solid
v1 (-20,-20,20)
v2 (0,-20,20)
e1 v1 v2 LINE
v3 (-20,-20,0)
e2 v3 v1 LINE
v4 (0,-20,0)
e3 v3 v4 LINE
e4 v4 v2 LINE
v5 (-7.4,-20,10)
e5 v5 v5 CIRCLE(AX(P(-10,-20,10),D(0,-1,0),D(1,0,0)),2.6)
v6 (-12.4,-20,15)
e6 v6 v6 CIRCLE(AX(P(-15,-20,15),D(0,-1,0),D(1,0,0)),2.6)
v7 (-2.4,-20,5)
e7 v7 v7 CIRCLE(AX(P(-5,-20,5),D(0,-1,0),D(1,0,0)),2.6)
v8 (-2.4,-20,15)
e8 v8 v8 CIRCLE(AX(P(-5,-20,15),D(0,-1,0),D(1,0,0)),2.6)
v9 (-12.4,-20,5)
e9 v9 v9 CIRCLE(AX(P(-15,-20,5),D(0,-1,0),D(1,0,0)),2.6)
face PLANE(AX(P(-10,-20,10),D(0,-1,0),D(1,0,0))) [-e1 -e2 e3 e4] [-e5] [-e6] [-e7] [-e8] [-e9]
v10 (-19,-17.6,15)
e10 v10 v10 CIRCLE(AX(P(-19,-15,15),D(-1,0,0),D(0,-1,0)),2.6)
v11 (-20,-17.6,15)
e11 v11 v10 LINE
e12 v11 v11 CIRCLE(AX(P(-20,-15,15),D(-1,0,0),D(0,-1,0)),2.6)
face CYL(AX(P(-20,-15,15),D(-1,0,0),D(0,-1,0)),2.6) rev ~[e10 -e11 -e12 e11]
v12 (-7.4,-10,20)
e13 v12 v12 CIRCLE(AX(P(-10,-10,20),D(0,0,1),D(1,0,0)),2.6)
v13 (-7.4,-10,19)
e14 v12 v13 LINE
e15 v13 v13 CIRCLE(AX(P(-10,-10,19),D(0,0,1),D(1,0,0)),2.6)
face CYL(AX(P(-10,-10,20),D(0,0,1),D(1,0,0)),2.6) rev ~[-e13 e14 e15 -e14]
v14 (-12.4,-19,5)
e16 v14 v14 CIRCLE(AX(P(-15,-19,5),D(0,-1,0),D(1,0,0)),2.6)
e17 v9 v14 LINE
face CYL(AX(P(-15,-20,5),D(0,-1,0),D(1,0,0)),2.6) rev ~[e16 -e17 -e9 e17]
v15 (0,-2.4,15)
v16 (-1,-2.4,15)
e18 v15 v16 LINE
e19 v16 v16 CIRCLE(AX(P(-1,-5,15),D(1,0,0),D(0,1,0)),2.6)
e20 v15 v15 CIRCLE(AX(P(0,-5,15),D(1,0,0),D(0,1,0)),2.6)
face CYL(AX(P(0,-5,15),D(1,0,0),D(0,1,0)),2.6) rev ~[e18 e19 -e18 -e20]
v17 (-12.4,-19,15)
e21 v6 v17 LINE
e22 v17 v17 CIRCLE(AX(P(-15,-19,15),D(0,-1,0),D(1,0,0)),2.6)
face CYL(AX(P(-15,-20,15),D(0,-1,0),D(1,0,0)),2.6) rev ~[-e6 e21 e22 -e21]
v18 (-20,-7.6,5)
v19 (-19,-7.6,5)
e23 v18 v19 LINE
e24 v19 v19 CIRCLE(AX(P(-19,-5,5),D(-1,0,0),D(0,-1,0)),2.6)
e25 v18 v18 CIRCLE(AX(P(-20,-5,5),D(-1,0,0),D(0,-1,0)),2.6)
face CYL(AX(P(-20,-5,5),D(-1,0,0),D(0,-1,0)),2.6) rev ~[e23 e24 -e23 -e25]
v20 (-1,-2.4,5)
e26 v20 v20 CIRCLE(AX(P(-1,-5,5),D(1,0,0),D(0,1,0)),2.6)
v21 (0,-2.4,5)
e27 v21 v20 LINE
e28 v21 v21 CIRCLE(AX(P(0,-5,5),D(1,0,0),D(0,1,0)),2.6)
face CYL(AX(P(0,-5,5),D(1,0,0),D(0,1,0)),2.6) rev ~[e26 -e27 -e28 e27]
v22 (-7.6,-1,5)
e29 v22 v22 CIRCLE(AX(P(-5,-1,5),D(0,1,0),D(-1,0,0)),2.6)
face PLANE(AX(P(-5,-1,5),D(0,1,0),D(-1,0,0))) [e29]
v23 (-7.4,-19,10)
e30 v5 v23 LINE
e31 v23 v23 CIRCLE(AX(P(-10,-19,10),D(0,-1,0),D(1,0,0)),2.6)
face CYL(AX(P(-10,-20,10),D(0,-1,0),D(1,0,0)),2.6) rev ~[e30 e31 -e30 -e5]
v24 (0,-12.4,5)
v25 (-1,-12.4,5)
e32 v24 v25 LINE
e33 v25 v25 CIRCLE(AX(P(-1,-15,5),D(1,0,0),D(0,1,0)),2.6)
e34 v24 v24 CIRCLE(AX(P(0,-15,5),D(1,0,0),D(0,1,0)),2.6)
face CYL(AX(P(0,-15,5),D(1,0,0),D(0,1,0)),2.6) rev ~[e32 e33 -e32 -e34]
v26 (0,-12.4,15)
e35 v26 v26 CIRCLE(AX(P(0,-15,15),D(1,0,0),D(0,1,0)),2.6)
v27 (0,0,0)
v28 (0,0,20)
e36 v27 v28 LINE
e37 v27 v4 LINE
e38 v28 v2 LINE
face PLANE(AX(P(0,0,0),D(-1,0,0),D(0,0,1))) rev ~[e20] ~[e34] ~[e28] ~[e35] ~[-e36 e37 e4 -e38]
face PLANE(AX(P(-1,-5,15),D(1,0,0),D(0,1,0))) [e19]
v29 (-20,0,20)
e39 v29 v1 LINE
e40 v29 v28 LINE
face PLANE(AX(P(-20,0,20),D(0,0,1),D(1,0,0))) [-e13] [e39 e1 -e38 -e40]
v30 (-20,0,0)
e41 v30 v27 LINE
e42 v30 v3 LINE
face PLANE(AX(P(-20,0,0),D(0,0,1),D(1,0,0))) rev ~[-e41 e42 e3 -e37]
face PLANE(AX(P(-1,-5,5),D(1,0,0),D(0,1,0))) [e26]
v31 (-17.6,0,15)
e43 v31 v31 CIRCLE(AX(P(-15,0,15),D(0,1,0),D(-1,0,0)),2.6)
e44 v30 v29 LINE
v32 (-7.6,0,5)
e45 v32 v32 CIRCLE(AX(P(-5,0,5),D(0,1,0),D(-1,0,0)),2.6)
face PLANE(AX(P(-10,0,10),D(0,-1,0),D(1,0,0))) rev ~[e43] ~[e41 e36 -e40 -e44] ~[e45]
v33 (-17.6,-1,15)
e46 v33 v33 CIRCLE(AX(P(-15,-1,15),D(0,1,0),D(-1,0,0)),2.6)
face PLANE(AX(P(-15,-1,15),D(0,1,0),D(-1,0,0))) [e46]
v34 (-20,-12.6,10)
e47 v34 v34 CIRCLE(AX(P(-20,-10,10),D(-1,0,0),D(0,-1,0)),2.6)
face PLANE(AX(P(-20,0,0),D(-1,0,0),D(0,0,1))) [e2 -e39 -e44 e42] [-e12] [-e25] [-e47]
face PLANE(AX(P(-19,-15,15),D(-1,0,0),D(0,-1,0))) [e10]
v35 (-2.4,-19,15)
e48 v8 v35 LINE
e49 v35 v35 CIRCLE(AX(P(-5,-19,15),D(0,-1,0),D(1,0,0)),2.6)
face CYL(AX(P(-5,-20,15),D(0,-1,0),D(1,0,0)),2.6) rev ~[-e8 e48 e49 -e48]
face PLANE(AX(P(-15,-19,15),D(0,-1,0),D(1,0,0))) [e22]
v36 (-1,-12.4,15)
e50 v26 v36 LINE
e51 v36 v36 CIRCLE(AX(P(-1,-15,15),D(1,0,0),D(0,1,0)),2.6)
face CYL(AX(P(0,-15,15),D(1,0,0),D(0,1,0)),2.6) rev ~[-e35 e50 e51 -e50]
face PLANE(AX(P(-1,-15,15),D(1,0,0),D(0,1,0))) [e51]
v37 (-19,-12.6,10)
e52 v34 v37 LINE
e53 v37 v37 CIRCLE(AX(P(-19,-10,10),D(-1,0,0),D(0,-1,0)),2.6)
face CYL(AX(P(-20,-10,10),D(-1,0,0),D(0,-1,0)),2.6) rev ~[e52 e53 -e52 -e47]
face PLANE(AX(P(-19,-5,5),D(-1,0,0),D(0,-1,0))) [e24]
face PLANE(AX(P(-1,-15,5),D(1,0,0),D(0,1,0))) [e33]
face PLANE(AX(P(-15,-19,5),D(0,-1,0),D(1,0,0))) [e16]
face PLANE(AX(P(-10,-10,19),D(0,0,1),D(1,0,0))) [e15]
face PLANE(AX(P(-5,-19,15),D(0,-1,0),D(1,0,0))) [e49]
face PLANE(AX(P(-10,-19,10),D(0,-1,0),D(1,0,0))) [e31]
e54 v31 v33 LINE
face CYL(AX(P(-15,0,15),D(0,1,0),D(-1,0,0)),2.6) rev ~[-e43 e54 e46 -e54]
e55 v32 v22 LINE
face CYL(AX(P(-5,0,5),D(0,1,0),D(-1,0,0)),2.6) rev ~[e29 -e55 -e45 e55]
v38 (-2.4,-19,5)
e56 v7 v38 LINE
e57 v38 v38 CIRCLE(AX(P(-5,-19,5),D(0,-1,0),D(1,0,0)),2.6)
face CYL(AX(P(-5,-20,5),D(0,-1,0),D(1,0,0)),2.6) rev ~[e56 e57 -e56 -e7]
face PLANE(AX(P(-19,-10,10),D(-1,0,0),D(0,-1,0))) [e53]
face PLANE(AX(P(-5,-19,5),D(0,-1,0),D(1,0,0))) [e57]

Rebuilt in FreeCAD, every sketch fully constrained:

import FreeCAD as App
import Part
import Sketcher


def add_polygon(sketch, points):
    """Adds a closed chain of lines whose ends are joined by coincident constraints."""
    first, n = sketch.GeometryCount, len(points)
    for a, b in zip(points, points[1:] + points[:1]):
        sketch.addGeometry(Part.LineSegment(App.Vector(*a, 0), App.Vector(*b, 0)), False)
    for i in range(n):
        sketch.addConstraint(Sketcher.Constraint("Coincident", first + i, 2, first + (i + 1) % n, 1))

doc = App.newDocument("Part")
body = doc.addObject("PartDesign::Body", "Body")

# Sketch on XZ plane
sketch1 = body.newObject("Sketcher::SketchObject", "Sketch")
sketch1.AttachmentSupport = (doc.getObject("XZ_Plane"), [""])
sketch1.MapMode = "FlatFace"
add_polygon(sketch1, [(-20, 20), (-20, 0), (0, 0), (0, 20)])  # lines 0-3
sketch1.addConstraint([
    Sketcher.Constraint("Vertical", 0),
    Sketcher.Constraint("Horizontal", 1),
    Sketcher.Constraint("Vertical", 2),
    Sketcher.Constraint("Horizontal", 3),
    Sketcher.Constraint("Coincident", 1, 2, -1, 1),
    Sketcher.Constraint("Equal", 3, 0),
    Sketcher.Constraint("DistanceX", 1, 1, 1, 2, 20.0),
])
pad1 = body.newObject("PartDesign::Pad", "Pad")
pad1.Profile = sketch1
pad1.Length = 20

# Sketch on XZ plane
sketch2 = body.newObject("Sketcher::SketchObject", "Sketch001")
sketch2.AttachmentSupport = (doc.getObject("XZ_Plane"), [""])
sketch2.MapMode = "FlatFace"
sketch2.AttachmentOffset = App.Placement(App.Vector(0, 0, 20), App.Rotation())
sketch2.addGeometry([
    Part.Circle(App.Vector(-15, 15, 0), App.Vector(0, 0, 1), 2.6),  # 0
    Part.Circle(App.Vector(-10, 10, 0), App.Vector(0, 0, 1), 2.6),  # 1
    Part.Circle(App.Vector(-15, 5, 0), App.Vector(0, 0, 1), 2.6),  # 2
    Part.Circle(App.Vector(-5, 15, 0), App.Vector(0, 0, 1), 2.6),  # 3
    Part.Circle(App.Vector(-5, 5, 0), App.Vector(0, 0, 1), 2.6),  # 4
], False)
sketch2.addConstraint([
    Sketcher.Constraint("Equal", 0, 1),
    Sketcher.Constraint("Equal", 1, 2),
    Sketcher.Constraint("Equal", 2, 3),
    Sketcher.Constraint("Equal", 3, 4),
    Sketcher.Constraint("Horizontal", 0, 3, 3, 3),
    Sketcher.Constraint("Horizontal", 2, 3, 4, 3),
    Sketcher.Constraint("Vertical", 0, 3, 2, 3),
    Sketcher.Constraint("Vertical", 3, 3, 4, 3),
    Sketcher.Constraint("Diameter", 0, 5.2),
    Sketcher.Constraint("DistanceX", 0, 3, -1, 1, 15.0),
    Sketcher.Constraint("DistanceY", -1, 1, 0, 3, 15.0),
    Sketcher.Constraint("DistanceX", 1, 3, -1, 1, 10.0),
    Sketcher.Constraint("DistanceY", -1, 1, 1, 3, 10.0),
    Sketcher.Constraint("DistanceY", -1, 1, 2, 3, 5.0),
    Sketcher.Constraint("DistanceX", 3, 3, -1, 1, 5.0),
])
pocket1 = body.newObject("PartDesign::Pocket", "Pocket")
pocket1.Profile = sketch2
pocket1.Length = 1

# Sketch on XZ plane
sketch3 = body.newObject("Sketcher::SketchObject", "Sketch002")
sketch3.AttachmentSupport = (doc.getObject("XZ_Plane"), [""])
sketch3.MapMode = "FlatFace"
sketch3.addGeometry([
    Part.Circle(App.Vector(-15, 15, 0), App.Vector(0, 0, 1), 2.6),
    Part.Circle(App.Vector(-5, 5, 0), App.Vector(0, 0, 1), 2.6),
], False)
sketch3.addConstraint([
    Sketcher.Constraint("Equal", 0, 1),
    Sketcher.Constraint("Diameter", 0, 5.2),
    Sketcher.Constraint("DistanceX", 0, 3, -1, 1, 15.0),
    Sketcher.Constraint("DistanceY", -1, 1, 0, 3, 15.0),
    Sketcher.Constraint("DistanceX", 1, 3, -1, 1, 5.0),
    Sketcher.Constraint("DistanceY", -1, 1, 1, 3, 5.0),
])
pocket2 = body.newObject("PartDesign::Pocket", "Pocket001")
pocket2.Profile = sketch3
pocket2.Length = 1
pocket2.Reversed = True

# Sketch on XY plane
sketch4 = body.newObject("Sketcher::SketchObject", "Sketch003")
sketch4.AttachmentSupport = (doc.getObject("XY_Plane"), [""])
sketch4.MapMode = "FlatFace"
sketch4.AttachmentOffset = App.Placement(App.Vector(0, 0, 20), App.Rotation())
sketch4.addGeometry(Part.Circle(App.Vector(-10, -10, 0), App.Vector(0, 0, 1), 2.6), False)
sketch4.addConstraint([
    Sketcher.Constraint("Diameter", 0, 5.2),
    Sketcher.Constraint("DistanceX", 0, 3, -1, 1, 10.0),
    Sketcher.Constraint("DistanceY", 0, 3, -1, 1, 10.0),
])
pocket3 = body.newObject("PartDesign::Pocket", "Pocket002")
pocket3.Profile = sketch4
pocket3.Length = 1

# Sketch on YZ plane
sketch5 = body.newObject("Sketcher::SketchObject", "Sketch004")
sketch5.AttachmentSupport = (doc.getObject("YZ_Plane"), [""])
sketch5.MapMode = "FlatFace"
sketch5.AttachmentOffset = App.Placement(App.Vector(0, 0, -20), App.Rotation())
sketch5.addGeometry([
    Part.Circle(App.Vector(-10, 10, 0), App.Vector(0, 0, 1), 2.6),
    Part.Circle(App.Vector(-15, 15, 0), App.Vector(0, 0, 1), 2.6),
    Part.Circle(App.Vector(-5, 5, 0), App.Vector(0, 0, 1), 2.6),
], False)
sketch5.addConstraint([
    Sketcher.Constraint("Equal", 0, 1),
    Sketcher.Constraint("Equal", 1, 2),
    Sketcher.Constraint("Diameter", 0, 5.2),
    Sketcher.Constraint("DistanceX", 0, 3, -1, 1, 10.0),
    Sketcher.Constraint("DistanceY", -1, 1, 0, 3, 10.0),
    Sketcher.Constraint("DistanceX", 1, 3, -1, 1, 15.0),
    Sketcher.Constraint("DistanceY", -1, 1, 1, 3, 15.0),
    Sketcher.Constraint("DistanceX", 2, 3, -1, 1, 5.0),
    Sketcher.Constraint("DistanceY", -1, 1, 2, 3, 5.0),
])
pocket4 = body.newObject("PartDesign::Pocket", "Pocket003")
pocket4.Profile = sketch5
pocket4.Length = 1
pocket4.Reversed = True

# Sketch on YZ plane
sketch6 = body.newObject("Sketcher::SketchObject", "Sketch005")
sketch6.AttachmentSupport = (doc.getObject("YZ_Plane"), [""])
sketch6.MapMode = "FlatFace"
sketch6.addGeometry([
    Part.Circle(App.Vector(-15, 15, 0), App.Vector(0, 0, 1), 2.6),
    Part.Circle(App.Vector(-15, 5, 0), App.Vector(0, 0, 1), 2.6),
    Part.Circle(App.Vector(-5, 15, 0), App.Vector(0, 0, 1), 2.6),
    Part.Circle(App.Vector(-5, 5, 0), App.Vector(0, 0, 1), 2.6),
], False)
sketch6.addConstraint([
    Sketcher.Constraint("Equal", 0, 1),
    Sketcher.Constraint("Equal", 1, 2),
    Sketcher.Constraint("Equal", 2, 3),
    Sketcher.Constraint("Horizontal", 0, 3, 2, 3),
    Sketcher.Constraint("Horizontal", 1, 3, 3, 3),
    Sketcher.Constraint("Vertical", 0, 3, 1, 3),
    Sketcher.Constraint("Vertical", 2, 3, 3, 3),
    Sketcher.Constraint("Diameter", 0, 5.2),
    Sketcher.Constraint("DistanceX", 0, 3, -1, 1, 15.0),
    Sketcher.Constraint("DistanceY", -1, 1, 0, 3, 15.0),
    Sketcher.Constraint("DistanceY", -1, 1, 1, 3, 5.0),
    Sketcher.Constraint("DistanceX", 2, 3, -1, 1, 5.0),
])
pocket5 = body.newObject("PartDesign::Pocket", "Pocket004")
pocket5.Profile = sketch6
pocket5.Length = 1

doc.recompute()
